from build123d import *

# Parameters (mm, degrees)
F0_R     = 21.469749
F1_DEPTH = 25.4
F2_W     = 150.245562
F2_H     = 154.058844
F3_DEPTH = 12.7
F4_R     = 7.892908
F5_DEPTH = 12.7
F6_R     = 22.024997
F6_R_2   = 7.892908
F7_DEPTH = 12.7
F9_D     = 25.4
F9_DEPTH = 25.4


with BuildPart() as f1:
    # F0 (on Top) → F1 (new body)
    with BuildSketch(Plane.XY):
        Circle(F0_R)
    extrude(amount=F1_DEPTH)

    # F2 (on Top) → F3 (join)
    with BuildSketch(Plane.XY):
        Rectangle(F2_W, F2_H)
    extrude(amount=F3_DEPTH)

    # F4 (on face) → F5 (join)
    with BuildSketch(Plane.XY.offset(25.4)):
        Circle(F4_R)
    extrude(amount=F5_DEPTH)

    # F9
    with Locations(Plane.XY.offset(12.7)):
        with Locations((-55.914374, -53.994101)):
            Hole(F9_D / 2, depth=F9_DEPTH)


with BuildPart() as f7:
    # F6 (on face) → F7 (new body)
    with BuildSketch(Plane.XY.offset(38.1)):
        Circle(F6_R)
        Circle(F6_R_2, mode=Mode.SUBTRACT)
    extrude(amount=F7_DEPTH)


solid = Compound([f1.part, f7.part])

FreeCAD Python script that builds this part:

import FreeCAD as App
import Part
import Sketcher
Q = App.Units.Quantity


def add_polygon(sketch, points):
    """Adds a closed chain of lines whose ends are joined by coincident constraints."""
    first, n = sketch.GeometryCount, len(points)
    for a, b in zip(points, points[1:] + points[:1]):
        sketch.addGeometry(Part.LineSegment(App.Vector(*a, 0), App.Vector(*b, 0)), False)
    for i in range(n):
        sketch.addConstraint(Sketcher.Constraint("Coincident", first + i, 2, first + (i + 1) % n, 1))

doc = App.newDocument("Part")
params = doc.addObject("Spreadsheet::Sheet", "Params")
for row, (alias, value) in enumerate([
    ("pad1_length", "1 in"),
    ("pad2_length", "0.5 in"),
    ("pad3_length", "0.5 in"),
    ("sketch4_diameter", "1 in"),
    ("hole_diameter", "1 in"),
    ("hole_depth", "1 in"),
    ("pad4_length", "0.5 in"),
], start=1):
    params.set(f"A{row}", alias)
    params.set(f"B{row}", "=" + value)
    params.setAlias(f"B{row}", alias)

body = doc.addObject("PartDesign::Body", "Body")

sketch1 = body.newObject("Sketcher::SketchObject", "Sketch")
sketch1.AttachmentSupport = (doc.getObject("XY_Plane"), [""])
sketch1.MapMode = "FlatFace"
sketch1.addGeometry(Part.Circle(App.Vector(0, 0, 0), App.Vector(0, 0, 1), 21), False)
sketch1.addConstraint([
    Sketcher.Constraint("Coincident", 0, 3, -1, 1),
    Sketcher.Constraint("Diameter", 0, 42.939498),
])
pad1 = body.newObject("PartDesign::Pad", "Pad")
pad1.Profile = sketch1
pad1.setExpression("Length", "Params.pad1_length")

sketch2 = body.newObject("Sketcher::SketchObject", "Sketch001")
sketch2.AttachmentSupport = (doc.getObject("XY_Plane"), [""])
sketch2.MapMode = "FlatFace"
add_polygon(sketch2, [(-75, 77), (-75, -77), (75, -77), (75, 77)])
sketch2.addConstraint([
    Sketcher.Constraint("Vertical", 0),
    Sketcher.Constraint("Horizontal", 1),
    Sketcher.Constraint("Vertical", 2),
    Sketcher.Constraint("Horizontal", 3),
    Sketcher.Constraint("Symmetric", 0, 2, 2, 2, -1, 1),
    Sketcher.Constraint("DistanceX", 1, 1, 1, 2, 150.245562),
    Sketcher.Constraint("DistanceY", 0, 2, 0, 1, 154.058844),
])
pad2 = body.newObject("PartDesign::Pad", "Pad001")
pad2.Profile = sketch2
pad2.setExpression("Length", "Params.pad2_length")

sketch3 = body.newObject("Sketcher::SketchObject", "Sketch002")
sketch3.AttachmentSupport = (doc.getObject("XY_Plane"), [""])
sketch3.MapMode = "FlatFace"
sketch3.AttachmentOffset = App.Placement(App.Vector(0, 0, 1 * 25.4), App.Rotation())
sketch3.addGeometry(Part.Circle(App.Vector(0, 0, 0), App.Vector(0, 0, 1), 8), False)
sketch3.addConstraint([
    Sketcher.Constraint("Coincident", 0, 3, -1, 1),
    Sketcher.Constraint("Diameter", 0, 15.785816),
])
pad3 = body.newObject("PartDesign::Pad", "Pad002")
pad3.Profile = sketch3
pad3.setExpression("Length", "Params.pad3_length")

sketch4 = body.newObject("Sketcher::SketchObject", "Sketch003")
sketch4.AttachmentSupport = (doc.getObject("XY_Plane"), [""])
sketch4.MapMode = "FlatFace"
sketch4.AttachmentOffset = App.Placement(App.Vector(0, 0, 0.5 * 25.4), App.Rotation())
sketch4.addGeometry(Part.Circle(App.Vector(-56, -54, 0), App.Vector(0, 0, 1), 13), False)
sketch4.addConstraint([
    Sketcher.Constraint("Diameter", 0, Q("1 in")),
    Sketcher.Constraint("DistanceY", 0, 3, -1, 1, 53.994101),
    Sketcher.Constraint("DistanceX", 0, 3, -1, 1, 55.914374),
])
sketch4.setExpression("Constraints[0]", "Params.sketch4_diameter")
doc.recompute()
hole = body.newObject("PartDesign::Hole", "Hole")
hole.Profile = sketch4
hole.ThreadType = "None"
hole.setExpression("Diameter", "Params.hole_diameter")
hole.DepthType = "Dimension"
hole.setExpression("Depth", "Params.hole_depth")
hole.DrillPoint = "Flat"
body2 = doc.addObject("PartDesign::Body", "Body001")

sketch5 = body2.newObject("Sketcher::SketchObject", "Sketch004")
sketch5.AttachmentSupport = (doc.getObject("XY_Plane001"), [""])
sketch5.MapMode = "FlatFace"
sketch5.AttachmentOffset = App.Placement(App.Vector(0, 0, 1.5 * 25.4), App.Rotation())
sketch5.addGeometry([
    Part.Circle(App.Vector(0, 0, 0), App.Vector(0, 0, 1), 22),
    Part.Circle(App.Vector(0, 0, 0), App.Vector(0, 0, 1), 8),
], False)
sketch5.addConstraint([
    Sketcher.Constraint("Coincident", 0, 3, -1, 1),
    Sketcher.Constraint("Coincident", 1, 3, -1, 1),
    Sketcher.Constraint("Diameter", 0, 44.049994),
    Sketcher.Constraint("Diameter", 1, 15.785816),
])
pad4 = body2.newObject("PartDesign::Pad", "Pad003")
pad4.Profile = sketch5
pad4.setExpression("Length", "Params.pad4_length")

doc.recompute()
